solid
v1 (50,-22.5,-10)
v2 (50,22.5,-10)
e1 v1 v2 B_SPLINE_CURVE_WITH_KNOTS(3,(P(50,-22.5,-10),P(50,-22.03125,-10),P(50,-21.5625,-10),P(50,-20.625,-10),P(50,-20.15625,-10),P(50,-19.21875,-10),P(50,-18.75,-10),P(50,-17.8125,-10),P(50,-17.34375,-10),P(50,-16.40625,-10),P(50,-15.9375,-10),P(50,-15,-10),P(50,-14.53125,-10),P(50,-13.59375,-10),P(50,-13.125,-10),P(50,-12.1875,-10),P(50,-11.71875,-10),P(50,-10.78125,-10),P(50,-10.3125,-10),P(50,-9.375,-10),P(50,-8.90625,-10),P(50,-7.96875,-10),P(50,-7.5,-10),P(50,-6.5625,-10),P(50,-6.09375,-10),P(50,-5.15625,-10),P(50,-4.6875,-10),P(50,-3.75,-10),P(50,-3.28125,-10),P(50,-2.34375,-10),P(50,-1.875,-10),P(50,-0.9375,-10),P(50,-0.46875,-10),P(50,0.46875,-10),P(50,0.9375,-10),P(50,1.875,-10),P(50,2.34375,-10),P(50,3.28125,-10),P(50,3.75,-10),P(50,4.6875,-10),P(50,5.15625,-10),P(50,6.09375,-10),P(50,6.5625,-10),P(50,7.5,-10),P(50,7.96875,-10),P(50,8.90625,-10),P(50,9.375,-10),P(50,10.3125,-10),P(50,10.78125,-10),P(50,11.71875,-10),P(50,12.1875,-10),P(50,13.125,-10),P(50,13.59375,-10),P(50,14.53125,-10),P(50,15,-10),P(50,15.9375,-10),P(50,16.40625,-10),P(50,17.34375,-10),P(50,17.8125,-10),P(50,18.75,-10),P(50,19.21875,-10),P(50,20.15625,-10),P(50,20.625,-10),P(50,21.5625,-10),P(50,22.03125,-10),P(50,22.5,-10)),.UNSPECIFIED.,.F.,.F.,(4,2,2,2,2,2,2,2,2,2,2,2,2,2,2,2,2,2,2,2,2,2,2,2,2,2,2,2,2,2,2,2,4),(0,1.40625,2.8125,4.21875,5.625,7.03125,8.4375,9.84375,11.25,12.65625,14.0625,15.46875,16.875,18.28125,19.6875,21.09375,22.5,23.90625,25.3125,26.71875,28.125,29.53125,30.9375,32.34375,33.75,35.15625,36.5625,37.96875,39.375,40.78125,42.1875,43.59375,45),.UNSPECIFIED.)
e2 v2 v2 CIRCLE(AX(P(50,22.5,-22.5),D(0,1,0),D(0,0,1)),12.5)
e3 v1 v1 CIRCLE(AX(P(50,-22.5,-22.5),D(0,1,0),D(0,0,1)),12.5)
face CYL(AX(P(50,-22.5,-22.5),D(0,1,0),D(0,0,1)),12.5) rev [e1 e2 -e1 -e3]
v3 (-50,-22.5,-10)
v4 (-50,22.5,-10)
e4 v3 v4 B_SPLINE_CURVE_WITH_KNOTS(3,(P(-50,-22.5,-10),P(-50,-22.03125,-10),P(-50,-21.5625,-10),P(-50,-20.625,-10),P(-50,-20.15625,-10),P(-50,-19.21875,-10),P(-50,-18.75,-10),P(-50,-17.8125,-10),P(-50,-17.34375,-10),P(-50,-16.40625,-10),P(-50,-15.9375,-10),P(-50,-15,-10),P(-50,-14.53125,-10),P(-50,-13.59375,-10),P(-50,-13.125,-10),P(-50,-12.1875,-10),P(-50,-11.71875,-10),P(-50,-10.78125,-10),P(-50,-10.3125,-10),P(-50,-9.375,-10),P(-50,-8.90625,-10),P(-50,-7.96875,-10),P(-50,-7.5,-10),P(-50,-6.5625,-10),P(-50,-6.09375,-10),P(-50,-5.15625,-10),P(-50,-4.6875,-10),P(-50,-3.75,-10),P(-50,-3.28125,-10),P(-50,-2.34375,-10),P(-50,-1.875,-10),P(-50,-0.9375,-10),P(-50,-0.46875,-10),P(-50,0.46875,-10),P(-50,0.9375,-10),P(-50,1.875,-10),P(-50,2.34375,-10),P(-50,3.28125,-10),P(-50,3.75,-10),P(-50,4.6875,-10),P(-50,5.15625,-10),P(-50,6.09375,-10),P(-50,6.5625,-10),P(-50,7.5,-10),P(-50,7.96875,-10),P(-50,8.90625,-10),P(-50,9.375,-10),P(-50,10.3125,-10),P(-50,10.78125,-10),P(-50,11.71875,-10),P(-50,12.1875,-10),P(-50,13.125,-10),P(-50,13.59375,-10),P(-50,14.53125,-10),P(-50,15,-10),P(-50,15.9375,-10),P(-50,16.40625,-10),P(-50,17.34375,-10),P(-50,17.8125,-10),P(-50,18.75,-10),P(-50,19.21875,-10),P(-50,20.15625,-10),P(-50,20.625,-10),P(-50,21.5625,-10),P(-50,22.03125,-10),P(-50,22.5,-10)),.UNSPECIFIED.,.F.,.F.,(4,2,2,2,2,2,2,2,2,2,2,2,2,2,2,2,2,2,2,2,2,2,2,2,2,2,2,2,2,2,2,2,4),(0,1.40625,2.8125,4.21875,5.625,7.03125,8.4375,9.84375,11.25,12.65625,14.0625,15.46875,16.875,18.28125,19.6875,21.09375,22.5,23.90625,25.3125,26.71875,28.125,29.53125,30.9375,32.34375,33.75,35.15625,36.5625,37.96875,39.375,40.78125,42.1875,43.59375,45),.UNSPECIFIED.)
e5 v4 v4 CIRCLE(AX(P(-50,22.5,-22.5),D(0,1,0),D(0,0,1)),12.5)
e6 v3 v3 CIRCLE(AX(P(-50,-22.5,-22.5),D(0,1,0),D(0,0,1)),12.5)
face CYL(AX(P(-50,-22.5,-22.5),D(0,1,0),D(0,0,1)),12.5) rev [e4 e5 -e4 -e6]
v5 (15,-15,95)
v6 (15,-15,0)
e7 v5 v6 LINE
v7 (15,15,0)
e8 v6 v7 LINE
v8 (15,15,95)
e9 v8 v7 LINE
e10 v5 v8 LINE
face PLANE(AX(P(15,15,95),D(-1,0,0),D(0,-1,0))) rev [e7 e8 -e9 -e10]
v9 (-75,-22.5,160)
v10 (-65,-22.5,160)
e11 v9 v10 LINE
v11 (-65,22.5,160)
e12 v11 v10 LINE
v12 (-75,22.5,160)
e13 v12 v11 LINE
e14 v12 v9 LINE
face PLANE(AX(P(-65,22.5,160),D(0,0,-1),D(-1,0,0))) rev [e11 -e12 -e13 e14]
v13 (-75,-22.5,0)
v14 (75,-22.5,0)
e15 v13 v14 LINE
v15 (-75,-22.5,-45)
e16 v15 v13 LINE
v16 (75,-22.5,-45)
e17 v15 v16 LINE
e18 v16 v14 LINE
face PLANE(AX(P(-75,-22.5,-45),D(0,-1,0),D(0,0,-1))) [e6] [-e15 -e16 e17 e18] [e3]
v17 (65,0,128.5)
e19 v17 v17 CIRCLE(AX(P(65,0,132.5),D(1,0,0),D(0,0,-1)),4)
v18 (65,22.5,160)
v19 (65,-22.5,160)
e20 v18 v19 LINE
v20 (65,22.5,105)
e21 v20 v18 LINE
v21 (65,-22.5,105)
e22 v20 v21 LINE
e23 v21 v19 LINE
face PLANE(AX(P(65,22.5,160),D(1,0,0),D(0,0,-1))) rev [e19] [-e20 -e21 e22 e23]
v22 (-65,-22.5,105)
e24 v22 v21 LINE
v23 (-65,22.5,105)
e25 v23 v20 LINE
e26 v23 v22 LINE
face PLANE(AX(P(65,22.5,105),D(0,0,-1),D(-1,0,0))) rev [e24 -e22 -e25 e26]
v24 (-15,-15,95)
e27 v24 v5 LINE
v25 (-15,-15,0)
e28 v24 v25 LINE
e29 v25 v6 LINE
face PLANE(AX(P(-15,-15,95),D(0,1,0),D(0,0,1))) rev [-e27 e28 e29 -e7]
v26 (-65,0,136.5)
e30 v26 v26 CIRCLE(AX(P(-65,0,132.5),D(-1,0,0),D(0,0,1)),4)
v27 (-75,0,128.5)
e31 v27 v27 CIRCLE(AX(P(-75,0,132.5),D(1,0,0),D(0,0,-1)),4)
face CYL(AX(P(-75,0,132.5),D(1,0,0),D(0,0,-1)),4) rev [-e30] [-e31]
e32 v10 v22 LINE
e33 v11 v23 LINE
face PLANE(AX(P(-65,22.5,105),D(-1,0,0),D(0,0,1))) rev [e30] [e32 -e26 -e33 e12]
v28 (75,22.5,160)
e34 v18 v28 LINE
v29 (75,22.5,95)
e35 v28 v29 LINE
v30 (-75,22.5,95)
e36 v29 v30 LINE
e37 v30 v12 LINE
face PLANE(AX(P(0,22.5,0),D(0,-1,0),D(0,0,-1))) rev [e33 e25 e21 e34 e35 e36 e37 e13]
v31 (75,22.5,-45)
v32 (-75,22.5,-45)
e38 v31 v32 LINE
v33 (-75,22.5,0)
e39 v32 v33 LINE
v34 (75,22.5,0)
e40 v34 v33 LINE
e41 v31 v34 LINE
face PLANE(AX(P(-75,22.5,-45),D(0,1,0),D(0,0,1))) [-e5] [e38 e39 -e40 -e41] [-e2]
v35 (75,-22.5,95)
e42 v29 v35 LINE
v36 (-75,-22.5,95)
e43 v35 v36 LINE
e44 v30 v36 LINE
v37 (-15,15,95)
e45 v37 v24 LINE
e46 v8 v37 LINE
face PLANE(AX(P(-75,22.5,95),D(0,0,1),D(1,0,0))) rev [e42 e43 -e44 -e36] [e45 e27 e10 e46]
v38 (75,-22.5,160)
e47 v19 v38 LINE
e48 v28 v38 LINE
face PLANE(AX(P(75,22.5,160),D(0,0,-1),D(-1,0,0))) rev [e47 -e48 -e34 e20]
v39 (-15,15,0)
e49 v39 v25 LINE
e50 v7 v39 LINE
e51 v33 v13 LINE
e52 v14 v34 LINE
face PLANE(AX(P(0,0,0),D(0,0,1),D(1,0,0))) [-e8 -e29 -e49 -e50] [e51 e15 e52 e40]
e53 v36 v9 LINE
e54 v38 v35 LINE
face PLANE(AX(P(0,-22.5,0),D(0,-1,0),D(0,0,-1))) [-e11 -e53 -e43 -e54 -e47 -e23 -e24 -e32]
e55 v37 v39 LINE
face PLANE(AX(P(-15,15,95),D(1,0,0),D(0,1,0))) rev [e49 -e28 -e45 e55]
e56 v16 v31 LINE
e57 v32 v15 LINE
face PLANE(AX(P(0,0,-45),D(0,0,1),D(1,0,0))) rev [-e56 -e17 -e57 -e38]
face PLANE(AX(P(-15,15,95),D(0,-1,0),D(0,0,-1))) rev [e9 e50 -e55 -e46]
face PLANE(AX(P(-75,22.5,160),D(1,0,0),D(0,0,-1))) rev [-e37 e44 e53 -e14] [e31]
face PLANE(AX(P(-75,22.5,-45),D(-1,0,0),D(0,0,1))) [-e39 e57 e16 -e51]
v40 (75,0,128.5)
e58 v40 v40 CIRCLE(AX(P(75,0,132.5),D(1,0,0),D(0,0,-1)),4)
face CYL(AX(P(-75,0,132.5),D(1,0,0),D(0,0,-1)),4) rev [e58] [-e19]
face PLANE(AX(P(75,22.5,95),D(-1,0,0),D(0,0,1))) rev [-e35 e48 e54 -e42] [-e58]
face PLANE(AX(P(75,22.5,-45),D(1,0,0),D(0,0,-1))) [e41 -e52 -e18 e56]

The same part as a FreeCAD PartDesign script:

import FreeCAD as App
import Part
import Sketcher

V = App.Vector

doc = App.newDocument("Part")
body = doc.addObject("PartDesign::Body", "Body")

# Sketch on XY plane
sketch1 = body.newObject("Sketcher::SketchObject", "Sketch")
sketch1.AttachmentSupport = (doc.getObject("XY_Plane"), [""])
sketch1.MapMode = "FlatFace"
sketch1.addGeometry([
    Part.LineSegment(V(-75, 22, 0), V(-75, -22, 0)),
    Part.LineSegment(V(-75, -22, 0), V(75, -22, 0)),
    Part.LineSegment(V(75, -22, 0), V(75, 22, 0)),
    Part.LineSegment(V(75, 22, 0), V(-75, 22, 0)),
], False)
sketch1.addConstraint([
    Sketcher.Constraint("Coincident", 0, 2, 1, 1),
    Sketcher.Constraint("Coincident", 1, 2, 2, 1),
    Sketcher.Constraint("Coincident", 2, 2, 3, 1),
    Sketcher.Constraint("Coincident", 3, 2, 0, 1),
    Sketcher.Constraint("Vertical", 0),
    Sketcher.Constraint("Horizontal", 1),
    Sketcher.Constraint("Vertical", 2),
    Sketcher.Constraint("Horizontal", 3),
    Sketcher.Constraint("Symmetric", 0, 2, 2, 2, -1, 1),
    Sketcher.Constraint("DistanceX", 1, 1, 1, 2, 150.0),
    Sketcher.Constraint("DistanceY", 0, 2, 0, 1, 45.0),
])
pad1 = body.newObject("PartDesign::Pad", "Pad")
pad1.Profile = sketch1
pad1.Length = 45
pad1.Reversed = True

# Sketch on XZ plane
sketch2 = body.newObject("Sketcher::SketchObject", "Sketch001")
sketch2.AttachmentSupport = (doc.getObject("XZ_Plane"), [""])
sketch2.MapMode = "FlatFace"
sketch2.addGeometry([
    Part.Circle(V(-50, -22, 0), V(0, 0, 1), 12),
    Part.Circle(V(50, -22, 0), V(0, 0, 1), 12),
], False)
sketch2.addConstraint([
    Sketcher.Constraint("Equal", 0, 1),
    Sketcher.Constraint("Symmetric", 0, 3, 1, 3, -2),
    Sketcher.Constraint("Diameter", 0, 25.0),
    Sketcher.Constraint("DistanceX", 0, 3, -1, 1, 50.0),
    Sketcher.Constraint("DistanceY", 0, 3, -1, 1, 22.5),
])
pocket1 = body.newObject("PartDesign::Pocket", "Pocket")
pocket1.Profile = sketch2
pocket1.Type = "ThroughAll"
pocket1.Midplane = True

# Sketch on XY plane
sketch3 = body.newObject("Sketcher::SketchObject", "Sketch002")
sketch3.AttachmentSupport = (doc.getObject("XY_Plane"), [""])
sketch3.MapMode = "FlatFace"
sketch3.addGeometry([
    Part.LineSegment(V(-15, 15, 0), V(-15, -15, 0)),
    Part.LineSegment(V(-15, -15, 0), V(15, -15, 0)),
    Part.LineSegment(V(15, -15, 0), V(15, 15, 0)),
    Part.LineSegment(V(15, 15, 0), V(-15, 15, 0)),
], False)
sketch3.addConstraint([
    Sketcher.Constraint("Coincident", 0, 2, 1, 1),
    Sketcher.Constraint("Coincident", 1, 2, 2, 1),
    Sketcher.Constraint("Coincident", 2, 2, 3, 1),
    Sketcher.Constraint("Coincident", 3, 2, 0, 1),
    Sketcher.Constraint("Vertical", 0),
    Sketcher.Constraint("Horizontal", 1),
    Sketcher.Constraint("Vertical", 2),
    Sketcher.Constraint("Horizontal", 3),
    Sketcher.Constraint("Symmetric", 0, 2, 2, 2, -1, 1),
    Sketcher.Constraint("Equal", 3, 0),
    Sketcher.Constraint("DistanceX", 1, 1, 1, 2, 30.0),
])
pad2 = body.newObject("PartDesign::Pad", "Pad001")
pad2.Profile = sketch3
pad2.Length = 95

# Sketch on XZ plane
sketch4 = body.newObject("Sketcher::SketchObject", "Sketch003")
sketch4.AttachmentSupport = (doc.getObject("XZ_Plane"), [""])
sketch4.MapMode = "FlatFace"
sketch4.addGeometry([
    Part.LineSegment(V(75, 95, 0), V(-75, 95, 0)),  # 0
    Part.LineSegment(V(-75, 95, 0), V(-75, 160, 0)),  # 1
    Part.LineSegment(V(-75, 160, 0), V(-65, 160, 0)),  # 2
    Part.LineSegment(V(-65, 160, 0), V(-65, 105, 0)),  # 3
    Part.LineSegment(V(-65, 105, 0), V(65, 105, 0)),  # 4
    Part.LineSegment(V(65, 105, 0), V(65, 160, 0)),  # 5
    Part.LineSegment(V(65, 160, 0), V(75, 160, 0)),  # 6
    Part.LineSegment(V(75, 160, 0), V(75, 95, 0)),  # 7
], False)
sketch4.addConstraint([
    Sketcher.Constraint("Coincident", 0, 2, 1, 1),
    Sketcher.Constraint("Coincident", 1, 2, 2, 1),
    Sketcher.Constraint("Coincident", 2, 2, 3, 1),
    Sketcher.Constraint("Coincident", 3, 2, 4, 1),
    Sketcher.Constraint("Coincident", 4, 2, 5, 1),
    Sketcher.Constraint("Coincident", 5, 2, 6, 1),
    Sketcher.Constraint("Coincident", 6, 2, 7, 1),
    Sketcher.Constraint("Coincident", 7, 2, 0, 1),
    Sketcher.Constraint("Horizontal", 0),
    Sketcher.Constraint("Vertical", 1),
    Sketcher.Constraint("Horizontal", 2),
    Sketcher.Constraint("Vertical", 3),
    Sketcher.Constraint("Horizontal", 4),
    Sketcher.Constraint("Vertical", 5),
    Sketcher.Constraint("Horizontal", 6),
    Sketcher.Constraint("Vertical", 7),
    Sketcher.Constraint("Symmetric", 2, 2, 5, 2, -2),
    Sketcher.Constraint("Equal", 2, 6),
    Sketcher.Constraint("DistanceX", 0, 2, 0, 1, 150.0),
    Sketcher.Constraint("DistanceX", 2, 1, 2, 2, 10.0),
    Sketcher.Constraint("DistanceY", 1, 1, 1, 2, 65.0),
    Sketcher.Constraint("DistanceY", 3, 2, 3, 1, 55.0),
    Sketcher.Constraint("DistanceY", -1, 1, 0, 2, 95.0),
])
pad3 = body.newObject("PartDesign::Pad", "Pad002")
pad3.Profile = sketch4
pad3.Length = 45
pad3.Midplane = True

# Sketch on YZ plane
sketch5 = body.newObject("Sketcher::SketchObject", "Sketch004")
sketch5.AttachmentSupport = (doc.getObject("YZ_Plane"), [""])
sketch5.MapMode = "FlatFace"
sketch5.addGeometry(Part.Circle(V(0, 132.5, 0), V(0, 0, 1), 4), False)
sketch5.addConstraint([
    Sketcher.Constraint("PointOnObject", 0, 3, -2),
    Sketcher.Constraint("Diameter", 0, 8.0),
    Sketcher.Constraint("DistanceY", -1, 1, 0, 3, 132.5),
])
pocket2 = body.newObject("PartDesign::Pocket", "Pocket001")
pocket2.Profile = sketch5
pocket2.Type = "ThroughAll"
pocket2.Midplane = True

doc.recompute()
